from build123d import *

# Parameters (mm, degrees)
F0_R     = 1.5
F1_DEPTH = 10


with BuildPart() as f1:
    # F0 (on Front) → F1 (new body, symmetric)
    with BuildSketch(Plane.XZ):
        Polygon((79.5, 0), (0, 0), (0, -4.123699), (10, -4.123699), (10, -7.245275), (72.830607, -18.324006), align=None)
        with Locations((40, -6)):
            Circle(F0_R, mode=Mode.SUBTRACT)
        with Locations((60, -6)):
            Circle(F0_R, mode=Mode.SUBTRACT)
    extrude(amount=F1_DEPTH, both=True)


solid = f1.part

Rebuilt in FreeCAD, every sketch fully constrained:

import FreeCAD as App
import Part
import Sketcher

V = App.Vector
Q = App.Units.Quantity


def add_polygon(sketch, points):
    """Adds a closed chain of lines whose ends are joined by coincident constraints."""
    first, n = sketch.GeometryCount, len(points)
    for a, b in zip(points, points[1:] + points[:1]):
        sketch.addGeometry(Part.LineSegment(App.Vector(*a, 0), App.Vector(*b, 0)), False)
    for i in range(n):
        sketch.addConstraint(Sketcher.Constraint("Coincident", first + i, 2, first + (i + 1) % n, 1))

doc = App.newDocument("Part")
body = doc.addObject("PartDesign::Body", "Body")

sketch1 = body.newObject("Sketcher::SketchObject", "Sketch")
sketch1.AttachmentSupport = (doc.getObject("XZ_Plane"), [""])
sketch1.MapMode = "FlatFace"
add_polygon(sketch1, [(79.5, 0), (0, 0), (0, -4.1), (10, -4.1), (10, -7.2), (72.8, -18.3)])
sketch1.addGeometry(Part.Circle(V(40, -6, 0), V(0, 0, 1), 1.5), False)
sketch1.addGeometry(Part.Circle(V(60, -6, 0), V(0, 0, 1), 1.5), False)
sketch1.addConstraint(Sketcher.Constraint("Horizontal", 0))
sketch1.addConstraint(Sketcher.Constraint("Vertical", 1))
sketch1.addConstraint(Sketcher.Constraint("Horizontal", 2))
sketch1.addConstraint(Sketcher.Constraint("Vertical", 3))
sketch1.addConstraint(Sketcher.Constraint("Coincident", 0, 2, -1, 1))
sketch1.addConstraint(Sketcher.Constraint("Equal", 6, 7))
sketch1.addConstraint(Sketcher.Constraint("Horizontal", 6, 3, 7, 3))
sketch1.addConstraint(Sketcher.Constraint("Diameter", 6, Q("3 mm")))
sketch1.addConstraint(Sketcher.Constraint("DistanceX", 2, 1, 2, 2, Q("10 mm")))
sketch1.addConstraint(Sketcher.Constraint("Angle", 4, Q("-10 deg")))
sketch1.addConstraint(Sketcher.Constraint("Angle", 5, Q("69.999999 deg")))
sketch1.addConstraint(Sketcher.Constraint("DistanceX", 0, 2, 0, 1, Q("79.5 mm")))
sketch1.addConstraint(Sketcher.Constraint("DistanceX", -1, 1, 6, 3, Q("40 mm")))
sketch1.addConstraint(Sketcher.Constraint("DistanceY", 6, 3, -1, 1, Q("6 mm")))
sketch1.addConstraint(Sketcher.Constraint("DistanceX", -1, 1, 7, 3, Q("60 mm")))
sketch1.addConstraint(Sketcher.Constraint("Distance", 5, Q("19.5 mm")))
sketch1.addConstraint(Sketcher.Constraint("DistanceY", 1, 2, 1, 1, Q("4.123699 mm")))
pad1 = body.newObject("PartDesign::Pad", "Pad")
pad1.Profile = sketch1
pad1.Length = 20
pad1.Midplane = True

doc.recompute()
